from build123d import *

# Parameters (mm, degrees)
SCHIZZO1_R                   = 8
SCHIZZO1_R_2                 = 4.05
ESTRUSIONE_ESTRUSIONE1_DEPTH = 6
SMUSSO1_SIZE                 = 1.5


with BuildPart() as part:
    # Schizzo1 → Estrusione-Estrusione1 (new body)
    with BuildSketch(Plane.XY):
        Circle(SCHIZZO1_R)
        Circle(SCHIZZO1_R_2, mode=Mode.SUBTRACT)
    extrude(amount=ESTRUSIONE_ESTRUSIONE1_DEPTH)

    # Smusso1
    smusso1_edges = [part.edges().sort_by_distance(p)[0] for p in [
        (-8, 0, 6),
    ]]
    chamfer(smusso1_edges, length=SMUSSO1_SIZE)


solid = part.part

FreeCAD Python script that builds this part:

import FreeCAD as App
import Part
import Sketcher
from FreeCAD import Vector


def edges_at(feature, points):
    """Names of the edges that pass closest to the given points."""
    edges = feature.Shape.Edges
    near = lambda p: min(range(len(edges)), key=lambda i: edges[i].distToShape(Part.Vertex(*p))[0])
    return sorted({f"Edge{near(p) + 1}" for p in points})

doc = App.newDocument("Part")
body = doc.addObject("PartDesign::Body", "Body")

# Sketch on XY plane
sketch1 = body.newObject("Sketcher::SketchObject", "Sketch")
sketch1.AttachmentSupport = (doc.getObject("XY_Plane"), [""])
sketch1.MapMode = "FlatFace"
sketch1.addGeometry([
    Part.Circle(Vector(0, 0, 0), Vector(0, 0, 1), 8),
    Part.Circle(Vector(0, 0, 0), Vector(0, 0, 1), 4),
], False)
sketch1.addConstraint([
    Sketcher.Constraint("Coincident", 0, 3, -1, 1),
    Sketcher.Constraint("Coincident", 1, 3, -1, 1),
    Sketcher.Constraint("Diameter", 0, 16.0),
    Sketcher.Constraint("Diameter", 1, 8.1),
])
pad1 = body.newObject("PartDesign::Pad", "Pad")
pad1.Profile = sketch1
pad1.Length = 6
doc.recompute()

chamfer = body.newObject("PartDesign::Chamfer", "Chamfer")
chamfer.Base = (pad1, edges_at(pad1, [(-8, 0, 6)]))
chamfer.Size = 1.5

doc.recompute()
